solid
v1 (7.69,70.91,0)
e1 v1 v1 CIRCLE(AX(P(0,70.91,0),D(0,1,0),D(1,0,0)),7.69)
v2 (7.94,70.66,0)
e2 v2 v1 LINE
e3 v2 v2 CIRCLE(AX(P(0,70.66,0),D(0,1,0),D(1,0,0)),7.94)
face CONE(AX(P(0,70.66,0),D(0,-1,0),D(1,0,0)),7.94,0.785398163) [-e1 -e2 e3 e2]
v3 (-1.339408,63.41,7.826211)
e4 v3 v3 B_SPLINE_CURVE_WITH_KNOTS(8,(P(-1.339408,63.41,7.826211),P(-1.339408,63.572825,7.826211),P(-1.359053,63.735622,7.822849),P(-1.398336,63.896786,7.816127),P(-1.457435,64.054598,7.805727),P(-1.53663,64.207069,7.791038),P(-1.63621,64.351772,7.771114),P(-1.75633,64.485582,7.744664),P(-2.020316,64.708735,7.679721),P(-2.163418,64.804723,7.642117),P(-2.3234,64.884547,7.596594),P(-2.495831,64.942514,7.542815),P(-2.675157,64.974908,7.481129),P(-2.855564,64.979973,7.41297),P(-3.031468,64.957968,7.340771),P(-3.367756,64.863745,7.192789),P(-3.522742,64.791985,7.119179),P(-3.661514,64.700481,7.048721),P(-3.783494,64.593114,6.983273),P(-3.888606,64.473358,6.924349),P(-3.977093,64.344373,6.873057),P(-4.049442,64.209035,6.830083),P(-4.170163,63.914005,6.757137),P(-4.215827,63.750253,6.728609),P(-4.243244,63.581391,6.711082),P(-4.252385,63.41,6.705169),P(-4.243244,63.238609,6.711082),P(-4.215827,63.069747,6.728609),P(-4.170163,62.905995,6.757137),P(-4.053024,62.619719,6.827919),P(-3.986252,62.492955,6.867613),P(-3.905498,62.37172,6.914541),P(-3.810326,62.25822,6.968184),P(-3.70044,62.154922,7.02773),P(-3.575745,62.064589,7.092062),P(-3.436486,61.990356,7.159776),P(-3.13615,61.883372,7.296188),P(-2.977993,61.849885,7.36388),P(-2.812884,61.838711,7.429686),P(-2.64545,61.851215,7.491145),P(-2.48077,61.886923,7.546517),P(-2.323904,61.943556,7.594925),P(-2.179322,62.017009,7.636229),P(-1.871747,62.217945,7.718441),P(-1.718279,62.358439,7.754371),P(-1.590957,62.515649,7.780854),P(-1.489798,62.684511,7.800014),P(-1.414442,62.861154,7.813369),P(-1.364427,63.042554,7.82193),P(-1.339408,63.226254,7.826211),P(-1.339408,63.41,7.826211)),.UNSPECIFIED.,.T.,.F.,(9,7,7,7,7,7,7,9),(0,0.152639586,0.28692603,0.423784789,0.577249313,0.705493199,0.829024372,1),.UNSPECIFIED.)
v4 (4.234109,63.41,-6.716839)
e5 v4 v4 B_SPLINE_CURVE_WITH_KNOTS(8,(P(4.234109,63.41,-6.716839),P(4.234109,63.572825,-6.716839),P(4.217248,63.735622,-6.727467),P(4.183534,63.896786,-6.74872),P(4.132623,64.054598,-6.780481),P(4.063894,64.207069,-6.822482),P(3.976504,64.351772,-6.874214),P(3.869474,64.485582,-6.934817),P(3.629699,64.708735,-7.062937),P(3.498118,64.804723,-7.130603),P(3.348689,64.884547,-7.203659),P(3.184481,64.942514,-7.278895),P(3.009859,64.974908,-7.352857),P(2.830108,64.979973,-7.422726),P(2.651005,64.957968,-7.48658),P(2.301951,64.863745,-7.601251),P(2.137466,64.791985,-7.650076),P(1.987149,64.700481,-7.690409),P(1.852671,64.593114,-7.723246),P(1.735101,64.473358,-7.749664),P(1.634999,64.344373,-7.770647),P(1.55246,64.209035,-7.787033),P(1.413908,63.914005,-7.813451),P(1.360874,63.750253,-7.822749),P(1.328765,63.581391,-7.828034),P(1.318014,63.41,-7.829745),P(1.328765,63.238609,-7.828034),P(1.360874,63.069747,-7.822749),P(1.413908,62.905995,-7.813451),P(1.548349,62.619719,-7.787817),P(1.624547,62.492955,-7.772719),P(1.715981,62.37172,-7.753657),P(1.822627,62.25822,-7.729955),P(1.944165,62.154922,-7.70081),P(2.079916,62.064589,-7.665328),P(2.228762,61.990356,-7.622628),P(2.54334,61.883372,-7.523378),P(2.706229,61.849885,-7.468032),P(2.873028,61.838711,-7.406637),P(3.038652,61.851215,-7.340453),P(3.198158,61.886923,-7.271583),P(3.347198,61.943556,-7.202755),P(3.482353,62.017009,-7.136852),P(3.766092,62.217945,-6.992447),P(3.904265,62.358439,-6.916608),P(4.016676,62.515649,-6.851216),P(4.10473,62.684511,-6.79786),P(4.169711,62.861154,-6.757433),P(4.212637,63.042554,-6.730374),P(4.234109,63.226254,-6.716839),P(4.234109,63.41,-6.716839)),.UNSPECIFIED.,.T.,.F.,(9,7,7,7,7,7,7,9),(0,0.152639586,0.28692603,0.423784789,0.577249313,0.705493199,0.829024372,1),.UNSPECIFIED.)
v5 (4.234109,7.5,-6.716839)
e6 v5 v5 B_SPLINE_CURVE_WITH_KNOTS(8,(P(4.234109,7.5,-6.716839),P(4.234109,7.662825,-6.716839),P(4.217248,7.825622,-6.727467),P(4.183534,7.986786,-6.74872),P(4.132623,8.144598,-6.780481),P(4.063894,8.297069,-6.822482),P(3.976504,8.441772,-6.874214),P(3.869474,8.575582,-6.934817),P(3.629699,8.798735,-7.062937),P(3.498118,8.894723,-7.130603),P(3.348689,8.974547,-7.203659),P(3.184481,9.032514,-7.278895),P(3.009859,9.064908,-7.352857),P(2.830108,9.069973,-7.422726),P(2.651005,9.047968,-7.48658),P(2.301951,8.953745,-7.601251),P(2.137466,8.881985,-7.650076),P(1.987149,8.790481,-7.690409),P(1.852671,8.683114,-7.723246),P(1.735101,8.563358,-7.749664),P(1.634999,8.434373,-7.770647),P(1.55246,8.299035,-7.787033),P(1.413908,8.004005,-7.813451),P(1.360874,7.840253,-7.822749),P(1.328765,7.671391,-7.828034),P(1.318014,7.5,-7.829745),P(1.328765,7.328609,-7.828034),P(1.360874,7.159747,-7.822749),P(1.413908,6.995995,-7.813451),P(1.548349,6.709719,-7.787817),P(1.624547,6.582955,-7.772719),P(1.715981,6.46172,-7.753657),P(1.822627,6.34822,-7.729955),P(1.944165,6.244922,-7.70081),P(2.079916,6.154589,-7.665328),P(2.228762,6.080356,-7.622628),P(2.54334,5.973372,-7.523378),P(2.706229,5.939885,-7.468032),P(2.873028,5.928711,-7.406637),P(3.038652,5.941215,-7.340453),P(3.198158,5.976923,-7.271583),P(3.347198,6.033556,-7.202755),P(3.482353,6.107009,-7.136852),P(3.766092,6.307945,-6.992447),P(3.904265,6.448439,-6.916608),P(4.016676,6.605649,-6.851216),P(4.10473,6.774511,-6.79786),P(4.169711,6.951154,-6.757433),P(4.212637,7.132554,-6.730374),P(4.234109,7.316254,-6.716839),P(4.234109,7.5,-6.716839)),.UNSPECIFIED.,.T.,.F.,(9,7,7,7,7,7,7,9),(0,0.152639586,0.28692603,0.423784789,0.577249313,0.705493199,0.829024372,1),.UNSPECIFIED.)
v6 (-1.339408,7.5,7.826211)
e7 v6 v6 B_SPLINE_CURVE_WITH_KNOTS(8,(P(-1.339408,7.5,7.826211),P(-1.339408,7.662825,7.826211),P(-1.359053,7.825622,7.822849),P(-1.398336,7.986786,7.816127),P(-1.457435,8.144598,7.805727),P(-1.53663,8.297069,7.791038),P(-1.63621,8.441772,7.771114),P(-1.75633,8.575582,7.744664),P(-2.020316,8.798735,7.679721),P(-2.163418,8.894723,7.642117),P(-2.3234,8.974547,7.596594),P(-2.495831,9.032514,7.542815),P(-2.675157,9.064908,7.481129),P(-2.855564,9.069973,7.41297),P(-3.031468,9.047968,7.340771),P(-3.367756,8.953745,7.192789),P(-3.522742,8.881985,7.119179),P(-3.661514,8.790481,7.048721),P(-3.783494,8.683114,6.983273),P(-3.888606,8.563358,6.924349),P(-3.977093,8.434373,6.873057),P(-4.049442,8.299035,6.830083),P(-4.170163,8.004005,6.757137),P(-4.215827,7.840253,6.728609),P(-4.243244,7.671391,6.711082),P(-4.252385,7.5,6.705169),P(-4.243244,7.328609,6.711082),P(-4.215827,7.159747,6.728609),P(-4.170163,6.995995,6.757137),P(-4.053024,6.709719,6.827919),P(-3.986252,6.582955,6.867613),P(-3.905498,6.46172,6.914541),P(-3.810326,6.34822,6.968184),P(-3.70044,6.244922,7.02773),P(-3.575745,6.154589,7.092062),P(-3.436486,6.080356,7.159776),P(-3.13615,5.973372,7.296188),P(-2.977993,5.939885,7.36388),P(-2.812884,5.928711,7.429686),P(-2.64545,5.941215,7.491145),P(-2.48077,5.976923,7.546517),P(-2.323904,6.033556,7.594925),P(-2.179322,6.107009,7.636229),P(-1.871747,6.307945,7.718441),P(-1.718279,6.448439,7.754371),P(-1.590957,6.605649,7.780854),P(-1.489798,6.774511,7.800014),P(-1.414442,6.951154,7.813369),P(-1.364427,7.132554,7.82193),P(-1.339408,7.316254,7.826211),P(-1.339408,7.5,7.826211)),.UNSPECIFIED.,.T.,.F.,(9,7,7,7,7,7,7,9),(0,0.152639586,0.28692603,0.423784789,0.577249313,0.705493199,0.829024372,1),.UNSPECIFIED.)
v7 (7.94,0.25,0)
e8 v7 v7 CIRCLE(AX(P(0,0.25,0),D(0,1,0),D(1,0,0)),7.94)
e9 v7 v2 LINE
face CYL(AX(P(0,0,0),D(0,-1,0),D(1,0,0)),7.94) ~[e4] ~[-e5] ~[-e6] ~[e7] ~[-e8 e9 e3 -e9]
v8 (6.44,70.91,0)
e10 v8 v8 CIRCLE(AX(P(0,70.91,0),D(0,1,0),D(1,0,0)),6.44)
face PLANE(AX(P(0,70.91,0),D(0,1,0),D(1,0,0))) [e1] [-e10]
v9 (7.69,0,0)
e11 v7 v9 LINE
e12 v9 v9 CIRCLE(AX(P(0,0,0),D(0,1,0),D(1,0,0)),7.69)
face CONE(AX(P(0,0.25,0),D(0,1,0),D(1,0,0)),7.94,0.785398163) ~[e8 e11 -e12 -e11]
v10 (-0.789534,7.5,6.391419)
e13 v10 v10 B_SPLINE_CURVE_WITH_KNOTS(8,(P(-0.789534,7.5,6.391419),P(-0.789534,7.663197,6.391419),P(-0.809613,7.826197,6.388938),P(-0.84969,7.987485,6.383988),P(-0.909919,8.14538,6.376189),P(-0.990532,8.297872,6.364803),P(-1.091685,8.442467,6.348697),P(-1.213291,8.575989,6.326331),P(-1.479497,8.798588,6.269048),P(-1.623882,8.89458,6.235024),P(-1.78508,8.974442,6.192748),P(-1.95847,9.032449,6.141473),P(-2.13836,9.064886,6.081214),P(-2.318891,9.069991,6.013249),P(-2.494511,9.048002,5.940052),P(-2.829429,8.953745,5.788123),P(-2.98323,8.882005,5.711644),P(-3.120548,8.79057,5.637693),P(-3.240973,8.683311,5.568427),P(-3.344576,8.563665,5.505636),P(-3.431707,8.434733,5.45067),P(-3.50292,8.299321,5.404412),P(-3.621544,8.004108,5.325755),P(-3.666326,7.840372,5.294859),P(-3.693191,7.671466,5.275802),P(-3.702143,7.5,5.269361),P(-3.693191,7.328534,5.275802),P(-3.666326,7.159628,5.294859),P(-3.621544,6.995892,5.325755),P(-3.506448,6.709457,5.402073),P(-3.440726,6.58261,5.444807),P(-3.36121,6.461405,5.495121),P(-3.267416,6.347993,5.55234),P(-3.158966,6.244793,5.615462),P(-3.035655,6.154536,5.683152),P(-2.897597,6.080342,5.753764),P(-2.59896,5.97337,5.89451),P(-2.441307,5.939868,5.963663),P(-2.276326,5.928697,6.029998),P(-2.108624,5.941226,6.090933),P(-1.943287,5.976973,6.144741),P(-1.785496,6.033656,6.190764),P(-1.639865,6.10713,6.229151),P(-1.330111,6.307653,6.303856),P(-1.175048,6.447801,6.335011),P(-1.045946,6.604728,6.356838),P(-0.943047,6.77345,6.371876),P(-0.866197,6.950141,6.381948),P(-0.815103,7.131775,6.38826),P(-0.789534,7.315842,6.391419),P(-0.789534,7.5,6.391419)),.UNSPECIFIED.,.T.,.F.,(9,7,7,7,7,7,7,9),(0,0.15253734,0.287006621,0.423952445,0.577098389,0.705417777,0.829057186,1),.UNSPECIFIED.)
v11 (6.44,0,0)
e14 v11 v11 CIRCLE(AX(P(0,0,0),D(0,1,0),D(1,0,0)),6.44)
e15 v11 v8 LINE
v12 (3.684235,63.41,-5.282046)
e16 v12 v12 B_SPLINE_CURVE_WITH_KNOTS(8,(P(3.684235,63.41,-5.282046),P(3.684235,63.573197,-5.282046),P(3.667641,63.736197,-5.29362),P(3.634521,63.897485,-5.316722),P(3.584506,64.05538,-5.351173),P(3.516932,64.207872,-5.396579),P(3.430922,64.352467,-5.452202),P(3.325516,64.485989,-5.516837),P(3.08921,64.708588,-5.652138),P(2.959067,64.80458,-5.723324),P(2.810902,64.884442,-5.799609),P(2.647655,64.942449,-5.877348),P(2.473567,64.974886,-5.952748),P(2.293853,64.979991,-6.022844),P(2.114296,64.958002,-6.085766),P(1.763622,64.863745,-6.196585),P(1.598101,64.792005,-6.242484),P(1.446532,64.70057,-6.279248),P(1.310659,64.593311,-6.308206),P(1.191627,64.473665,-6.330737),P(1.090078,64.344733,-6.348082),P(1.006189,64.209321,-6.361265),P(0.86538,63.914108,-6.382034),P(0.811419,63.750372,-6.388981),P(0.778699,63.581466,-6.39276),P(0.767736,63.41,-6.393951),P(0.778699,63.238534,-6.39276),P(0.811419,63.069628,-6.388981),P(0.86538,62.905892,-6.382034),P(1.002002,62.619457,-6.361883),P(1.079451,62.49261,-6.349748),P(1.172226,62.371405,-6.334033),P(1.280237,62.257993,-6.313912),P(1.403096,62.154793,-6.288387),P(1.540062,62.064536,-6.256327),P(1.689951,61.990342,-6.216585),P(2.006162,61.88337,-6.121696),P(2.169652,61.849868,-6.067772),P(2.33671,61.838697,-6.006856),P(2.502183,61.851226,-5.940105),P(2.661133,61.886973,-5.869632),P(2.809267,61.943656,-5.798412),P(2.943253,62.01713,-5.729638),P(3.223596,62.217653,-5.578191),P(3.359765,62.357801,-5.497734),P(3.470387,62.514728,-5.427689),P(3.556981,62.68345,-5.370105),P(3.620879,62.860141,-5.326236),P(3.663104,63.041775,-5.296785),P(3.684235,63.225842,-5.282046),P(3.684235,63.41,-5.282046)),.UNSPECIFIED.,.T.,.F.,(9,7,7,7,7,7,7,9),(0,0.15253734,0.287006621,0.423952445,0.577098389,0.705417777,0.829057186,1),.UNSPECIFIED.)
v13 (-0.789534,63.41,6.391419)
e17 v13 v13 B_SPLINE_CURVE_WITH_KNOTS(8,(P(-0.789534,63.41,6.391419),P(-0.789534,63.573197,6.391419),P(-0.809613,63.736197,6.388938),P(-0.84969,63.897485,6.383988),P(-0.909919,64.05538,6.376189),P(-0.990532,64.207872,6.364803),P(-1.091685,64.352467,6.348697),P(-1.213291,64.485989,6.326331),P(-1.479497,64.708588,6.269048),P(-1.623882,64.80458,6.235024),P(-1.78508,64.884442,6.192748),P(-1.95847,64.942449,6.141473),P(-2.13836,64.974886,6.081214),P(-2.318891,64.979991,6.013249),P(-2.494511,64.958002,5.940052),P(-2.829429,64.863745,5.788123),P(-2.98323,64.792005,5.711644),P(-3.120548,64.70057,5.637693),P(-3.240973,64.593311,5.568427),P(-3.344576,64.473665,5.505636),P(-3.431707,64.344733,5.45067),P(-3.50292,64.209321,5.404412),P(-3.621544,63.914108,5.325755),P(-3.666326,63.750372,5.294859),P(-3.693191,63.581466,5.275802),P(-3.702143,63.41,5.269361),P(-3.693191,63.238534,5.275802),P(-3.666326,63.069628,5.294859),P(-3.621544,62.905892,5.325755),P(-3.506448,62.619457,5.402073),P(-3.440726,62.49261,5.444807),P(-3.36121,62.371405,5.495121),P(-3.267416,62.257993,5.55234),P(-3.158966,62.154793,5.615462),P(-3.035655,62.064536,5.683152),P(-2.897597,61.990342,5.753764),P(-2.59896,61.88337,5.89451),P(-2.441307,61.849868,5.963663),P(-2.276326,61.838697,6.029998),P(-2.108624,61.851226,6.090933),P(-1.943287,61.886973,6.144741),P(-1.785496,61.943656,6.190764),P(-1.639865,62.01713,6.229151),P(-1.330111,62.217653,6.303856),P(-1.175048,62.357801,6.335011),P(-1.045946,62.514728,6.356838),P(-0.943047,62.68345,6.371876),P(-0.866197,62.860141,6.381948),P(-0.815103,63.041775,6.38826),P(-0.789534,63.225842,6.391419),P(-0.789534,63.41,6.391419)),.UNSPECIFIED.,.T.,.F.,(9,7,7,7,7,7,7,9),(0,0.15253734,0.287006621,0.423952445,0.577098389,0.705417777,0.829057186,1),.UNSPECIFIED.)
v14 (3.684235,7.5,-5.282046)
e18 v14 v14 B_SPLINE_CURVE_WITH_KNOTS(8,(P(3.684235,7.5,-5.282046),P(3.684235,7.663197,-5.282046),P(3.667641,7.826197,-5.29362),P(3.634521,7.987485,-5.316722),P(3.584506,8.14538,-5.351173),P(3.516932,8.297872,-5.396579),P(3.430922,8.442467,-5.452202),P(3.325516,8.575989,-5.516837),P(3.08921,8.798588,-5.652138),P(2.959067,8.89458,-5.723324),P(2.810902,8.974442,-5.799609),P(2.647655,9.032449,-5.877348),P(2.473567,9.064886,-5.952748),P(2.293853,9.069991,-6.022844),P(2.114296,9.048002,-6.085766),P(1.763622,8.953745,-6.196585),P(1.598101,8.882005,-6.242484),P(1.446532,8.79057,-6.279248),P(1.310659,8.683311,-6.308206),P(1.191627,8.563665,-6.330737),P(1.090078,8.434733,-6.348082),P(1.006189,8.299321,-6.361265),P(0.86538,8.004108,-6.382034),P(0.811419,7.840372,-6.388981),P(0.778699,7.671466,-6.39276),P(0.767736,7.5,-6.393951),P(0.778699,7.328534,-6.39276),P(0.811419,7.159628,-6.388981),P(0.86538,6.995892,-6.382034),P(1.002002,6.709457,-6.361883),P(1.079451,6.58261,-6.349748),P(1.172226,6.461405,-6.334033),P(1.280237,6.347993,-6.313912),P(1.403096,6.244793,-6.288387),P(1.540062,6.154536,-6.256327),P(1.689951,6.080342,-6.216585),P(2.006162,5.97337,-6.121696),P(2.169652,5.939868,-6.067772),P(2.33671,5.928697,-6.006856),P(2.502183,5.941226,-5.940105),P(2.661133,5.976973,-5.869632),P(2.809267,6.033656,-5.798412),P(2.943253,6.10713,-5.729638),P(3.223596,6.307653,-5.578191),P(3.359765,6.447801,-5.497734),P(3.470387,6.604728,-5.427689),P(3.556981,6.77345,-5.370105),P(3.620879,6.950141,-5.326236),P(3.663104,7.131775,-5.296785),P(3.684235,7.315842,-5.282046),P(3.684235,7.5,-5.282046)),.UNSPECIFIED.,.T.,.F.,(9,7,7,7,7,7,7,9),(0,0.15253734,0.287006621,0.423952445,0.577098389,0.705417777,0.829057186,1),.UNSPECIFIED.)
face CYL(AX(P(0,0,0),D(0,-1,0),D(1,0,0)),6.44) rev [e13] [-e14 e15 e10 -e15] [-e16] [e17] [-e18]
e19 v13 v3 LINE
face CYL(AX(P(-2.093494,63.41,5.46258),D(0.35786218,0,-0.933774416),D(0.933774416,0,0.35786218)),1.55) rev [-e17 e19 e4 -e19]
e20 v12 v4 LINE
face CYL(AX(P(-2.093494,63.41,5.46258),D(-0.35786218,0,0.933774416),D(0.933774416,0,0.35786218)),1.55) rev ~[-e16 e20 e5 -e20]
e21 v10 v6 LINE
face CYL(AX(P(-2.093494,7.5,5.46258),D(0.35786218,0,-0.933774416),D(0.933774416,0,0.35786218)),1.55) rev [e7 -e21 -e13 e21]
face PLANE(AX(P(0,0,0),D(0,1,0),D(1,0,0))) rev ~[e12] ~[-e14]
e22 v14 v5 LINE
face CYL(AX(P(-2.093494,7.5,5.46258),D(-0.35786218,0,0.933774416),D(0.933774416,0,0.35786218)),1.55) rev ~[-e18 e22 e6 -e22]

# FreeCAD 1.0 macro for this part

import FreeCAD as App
import Part
import Sketcher
Q = App.Units.Quantity


def edges_at(feature, points):
    """Names of the edges that pass closest to the given points."""
    edges = feature.Shape.Edges
    near = lambda p: min(range(len(edges)), key=lambda i: edges[i].distToShape(Part.Vertex(*p))[0])
    return sorted({f"Edge{near(p) + 1}" for p in points})

doc = App.newDocument("Part")
body = doc.addObject("PartDesign::Body", "Body")

sketch1 = doc.addObject("Sketcher::SketchObject", "Sketch")
body.addObject(sketch1)
sketch1.AttachmentSupport = (doc.XZ_Plane, [""])
sketch1.MapMode = "FlatFace"
sketch1.addGeometry([
    Part.Circle(App.Vector(0, 0, 0), App.Vector(0, 0, 1), 7.94),
    Part.Circle(App.Vector(0, 0, 0), App.Vector(0, 0, 1), 6.44),
], False)
sketch1.addConstraint([
    Sketcher.Constraint("Coincident", 0, 3, -1, 1),
    Sketcher.Constraint("Coincident", 1, 3, -1, 1),
    Sketcher.Constraint("Diameter", 0, Q("15.88 mm")),
    Sketcher.Constraint("Diameter", 1, Q("12.88 mm")),
])
pad1 = doc.addObject("PartDesign::Pad", "Pad")
body.addObject(pad1)
pad1.Profile = sketch1
pad1.Length = 70.91
pad1.Reversed = True
doc.recompute()

chamfer = doc.addObject("PartDesign::Chamfer", "Chamfer")
body.addObject(chamfer)
chamfer.Base = (pad1, edges_at(pad1, [(-7.94, 0, 0), (-7.94, 70.91, 0)]))
chamfer.Size = 0.25

sketch2 = doc.addObject("Sketcher::SketchObject", "Sketch001")
body.addObject(sketch2)
sketch2.Placement = App.Placement(App.Vector(-2.093494, 0, 5.46258), App.Rotation(App.Vector(0.933774416, 0, 0.35786218), App.Vector(0, 1, 0), App.Vector(-0.35786218, 0, 0.933774416), "ZXY"))
sketch2.addGeometry([
    Part.Circle(App.Vector(0, 63.41, 0), App.Vector(0, 0, 1), 1.55),
    Part.Circle(App.Vector(0, 7.5, 0), App.Vector(0, 0, 1), 1.55),
], False)
sketch2.addConstraint([
    Sketcher.Constraint("Equal", 0, 1),
    Sketcher.Constraint("PointOnObject", 0, 3, -2),
    Sketcher.Constraint("PointOnObject", 1, 3, -2),
    Sketcher.Constraint("Diameter", 0, Q("3.1 mm")),
    Sketcher.Constraint("DistanceY", -1, 1, 1, 3, Q("7.5 mm")),
    Sketcher.Constraint("DistanceY", -1, 1, 0, 3, Q("63.41 mm")),
])
pocket1 = doc.addObject("PartDesign::Pocket", "Pocket")
body.addObject(pocket1)
pocket1.Profile = sketch2
pocket1.Type = "ThroughAll"
pocket1.Midplane = True

doc.recompute()
